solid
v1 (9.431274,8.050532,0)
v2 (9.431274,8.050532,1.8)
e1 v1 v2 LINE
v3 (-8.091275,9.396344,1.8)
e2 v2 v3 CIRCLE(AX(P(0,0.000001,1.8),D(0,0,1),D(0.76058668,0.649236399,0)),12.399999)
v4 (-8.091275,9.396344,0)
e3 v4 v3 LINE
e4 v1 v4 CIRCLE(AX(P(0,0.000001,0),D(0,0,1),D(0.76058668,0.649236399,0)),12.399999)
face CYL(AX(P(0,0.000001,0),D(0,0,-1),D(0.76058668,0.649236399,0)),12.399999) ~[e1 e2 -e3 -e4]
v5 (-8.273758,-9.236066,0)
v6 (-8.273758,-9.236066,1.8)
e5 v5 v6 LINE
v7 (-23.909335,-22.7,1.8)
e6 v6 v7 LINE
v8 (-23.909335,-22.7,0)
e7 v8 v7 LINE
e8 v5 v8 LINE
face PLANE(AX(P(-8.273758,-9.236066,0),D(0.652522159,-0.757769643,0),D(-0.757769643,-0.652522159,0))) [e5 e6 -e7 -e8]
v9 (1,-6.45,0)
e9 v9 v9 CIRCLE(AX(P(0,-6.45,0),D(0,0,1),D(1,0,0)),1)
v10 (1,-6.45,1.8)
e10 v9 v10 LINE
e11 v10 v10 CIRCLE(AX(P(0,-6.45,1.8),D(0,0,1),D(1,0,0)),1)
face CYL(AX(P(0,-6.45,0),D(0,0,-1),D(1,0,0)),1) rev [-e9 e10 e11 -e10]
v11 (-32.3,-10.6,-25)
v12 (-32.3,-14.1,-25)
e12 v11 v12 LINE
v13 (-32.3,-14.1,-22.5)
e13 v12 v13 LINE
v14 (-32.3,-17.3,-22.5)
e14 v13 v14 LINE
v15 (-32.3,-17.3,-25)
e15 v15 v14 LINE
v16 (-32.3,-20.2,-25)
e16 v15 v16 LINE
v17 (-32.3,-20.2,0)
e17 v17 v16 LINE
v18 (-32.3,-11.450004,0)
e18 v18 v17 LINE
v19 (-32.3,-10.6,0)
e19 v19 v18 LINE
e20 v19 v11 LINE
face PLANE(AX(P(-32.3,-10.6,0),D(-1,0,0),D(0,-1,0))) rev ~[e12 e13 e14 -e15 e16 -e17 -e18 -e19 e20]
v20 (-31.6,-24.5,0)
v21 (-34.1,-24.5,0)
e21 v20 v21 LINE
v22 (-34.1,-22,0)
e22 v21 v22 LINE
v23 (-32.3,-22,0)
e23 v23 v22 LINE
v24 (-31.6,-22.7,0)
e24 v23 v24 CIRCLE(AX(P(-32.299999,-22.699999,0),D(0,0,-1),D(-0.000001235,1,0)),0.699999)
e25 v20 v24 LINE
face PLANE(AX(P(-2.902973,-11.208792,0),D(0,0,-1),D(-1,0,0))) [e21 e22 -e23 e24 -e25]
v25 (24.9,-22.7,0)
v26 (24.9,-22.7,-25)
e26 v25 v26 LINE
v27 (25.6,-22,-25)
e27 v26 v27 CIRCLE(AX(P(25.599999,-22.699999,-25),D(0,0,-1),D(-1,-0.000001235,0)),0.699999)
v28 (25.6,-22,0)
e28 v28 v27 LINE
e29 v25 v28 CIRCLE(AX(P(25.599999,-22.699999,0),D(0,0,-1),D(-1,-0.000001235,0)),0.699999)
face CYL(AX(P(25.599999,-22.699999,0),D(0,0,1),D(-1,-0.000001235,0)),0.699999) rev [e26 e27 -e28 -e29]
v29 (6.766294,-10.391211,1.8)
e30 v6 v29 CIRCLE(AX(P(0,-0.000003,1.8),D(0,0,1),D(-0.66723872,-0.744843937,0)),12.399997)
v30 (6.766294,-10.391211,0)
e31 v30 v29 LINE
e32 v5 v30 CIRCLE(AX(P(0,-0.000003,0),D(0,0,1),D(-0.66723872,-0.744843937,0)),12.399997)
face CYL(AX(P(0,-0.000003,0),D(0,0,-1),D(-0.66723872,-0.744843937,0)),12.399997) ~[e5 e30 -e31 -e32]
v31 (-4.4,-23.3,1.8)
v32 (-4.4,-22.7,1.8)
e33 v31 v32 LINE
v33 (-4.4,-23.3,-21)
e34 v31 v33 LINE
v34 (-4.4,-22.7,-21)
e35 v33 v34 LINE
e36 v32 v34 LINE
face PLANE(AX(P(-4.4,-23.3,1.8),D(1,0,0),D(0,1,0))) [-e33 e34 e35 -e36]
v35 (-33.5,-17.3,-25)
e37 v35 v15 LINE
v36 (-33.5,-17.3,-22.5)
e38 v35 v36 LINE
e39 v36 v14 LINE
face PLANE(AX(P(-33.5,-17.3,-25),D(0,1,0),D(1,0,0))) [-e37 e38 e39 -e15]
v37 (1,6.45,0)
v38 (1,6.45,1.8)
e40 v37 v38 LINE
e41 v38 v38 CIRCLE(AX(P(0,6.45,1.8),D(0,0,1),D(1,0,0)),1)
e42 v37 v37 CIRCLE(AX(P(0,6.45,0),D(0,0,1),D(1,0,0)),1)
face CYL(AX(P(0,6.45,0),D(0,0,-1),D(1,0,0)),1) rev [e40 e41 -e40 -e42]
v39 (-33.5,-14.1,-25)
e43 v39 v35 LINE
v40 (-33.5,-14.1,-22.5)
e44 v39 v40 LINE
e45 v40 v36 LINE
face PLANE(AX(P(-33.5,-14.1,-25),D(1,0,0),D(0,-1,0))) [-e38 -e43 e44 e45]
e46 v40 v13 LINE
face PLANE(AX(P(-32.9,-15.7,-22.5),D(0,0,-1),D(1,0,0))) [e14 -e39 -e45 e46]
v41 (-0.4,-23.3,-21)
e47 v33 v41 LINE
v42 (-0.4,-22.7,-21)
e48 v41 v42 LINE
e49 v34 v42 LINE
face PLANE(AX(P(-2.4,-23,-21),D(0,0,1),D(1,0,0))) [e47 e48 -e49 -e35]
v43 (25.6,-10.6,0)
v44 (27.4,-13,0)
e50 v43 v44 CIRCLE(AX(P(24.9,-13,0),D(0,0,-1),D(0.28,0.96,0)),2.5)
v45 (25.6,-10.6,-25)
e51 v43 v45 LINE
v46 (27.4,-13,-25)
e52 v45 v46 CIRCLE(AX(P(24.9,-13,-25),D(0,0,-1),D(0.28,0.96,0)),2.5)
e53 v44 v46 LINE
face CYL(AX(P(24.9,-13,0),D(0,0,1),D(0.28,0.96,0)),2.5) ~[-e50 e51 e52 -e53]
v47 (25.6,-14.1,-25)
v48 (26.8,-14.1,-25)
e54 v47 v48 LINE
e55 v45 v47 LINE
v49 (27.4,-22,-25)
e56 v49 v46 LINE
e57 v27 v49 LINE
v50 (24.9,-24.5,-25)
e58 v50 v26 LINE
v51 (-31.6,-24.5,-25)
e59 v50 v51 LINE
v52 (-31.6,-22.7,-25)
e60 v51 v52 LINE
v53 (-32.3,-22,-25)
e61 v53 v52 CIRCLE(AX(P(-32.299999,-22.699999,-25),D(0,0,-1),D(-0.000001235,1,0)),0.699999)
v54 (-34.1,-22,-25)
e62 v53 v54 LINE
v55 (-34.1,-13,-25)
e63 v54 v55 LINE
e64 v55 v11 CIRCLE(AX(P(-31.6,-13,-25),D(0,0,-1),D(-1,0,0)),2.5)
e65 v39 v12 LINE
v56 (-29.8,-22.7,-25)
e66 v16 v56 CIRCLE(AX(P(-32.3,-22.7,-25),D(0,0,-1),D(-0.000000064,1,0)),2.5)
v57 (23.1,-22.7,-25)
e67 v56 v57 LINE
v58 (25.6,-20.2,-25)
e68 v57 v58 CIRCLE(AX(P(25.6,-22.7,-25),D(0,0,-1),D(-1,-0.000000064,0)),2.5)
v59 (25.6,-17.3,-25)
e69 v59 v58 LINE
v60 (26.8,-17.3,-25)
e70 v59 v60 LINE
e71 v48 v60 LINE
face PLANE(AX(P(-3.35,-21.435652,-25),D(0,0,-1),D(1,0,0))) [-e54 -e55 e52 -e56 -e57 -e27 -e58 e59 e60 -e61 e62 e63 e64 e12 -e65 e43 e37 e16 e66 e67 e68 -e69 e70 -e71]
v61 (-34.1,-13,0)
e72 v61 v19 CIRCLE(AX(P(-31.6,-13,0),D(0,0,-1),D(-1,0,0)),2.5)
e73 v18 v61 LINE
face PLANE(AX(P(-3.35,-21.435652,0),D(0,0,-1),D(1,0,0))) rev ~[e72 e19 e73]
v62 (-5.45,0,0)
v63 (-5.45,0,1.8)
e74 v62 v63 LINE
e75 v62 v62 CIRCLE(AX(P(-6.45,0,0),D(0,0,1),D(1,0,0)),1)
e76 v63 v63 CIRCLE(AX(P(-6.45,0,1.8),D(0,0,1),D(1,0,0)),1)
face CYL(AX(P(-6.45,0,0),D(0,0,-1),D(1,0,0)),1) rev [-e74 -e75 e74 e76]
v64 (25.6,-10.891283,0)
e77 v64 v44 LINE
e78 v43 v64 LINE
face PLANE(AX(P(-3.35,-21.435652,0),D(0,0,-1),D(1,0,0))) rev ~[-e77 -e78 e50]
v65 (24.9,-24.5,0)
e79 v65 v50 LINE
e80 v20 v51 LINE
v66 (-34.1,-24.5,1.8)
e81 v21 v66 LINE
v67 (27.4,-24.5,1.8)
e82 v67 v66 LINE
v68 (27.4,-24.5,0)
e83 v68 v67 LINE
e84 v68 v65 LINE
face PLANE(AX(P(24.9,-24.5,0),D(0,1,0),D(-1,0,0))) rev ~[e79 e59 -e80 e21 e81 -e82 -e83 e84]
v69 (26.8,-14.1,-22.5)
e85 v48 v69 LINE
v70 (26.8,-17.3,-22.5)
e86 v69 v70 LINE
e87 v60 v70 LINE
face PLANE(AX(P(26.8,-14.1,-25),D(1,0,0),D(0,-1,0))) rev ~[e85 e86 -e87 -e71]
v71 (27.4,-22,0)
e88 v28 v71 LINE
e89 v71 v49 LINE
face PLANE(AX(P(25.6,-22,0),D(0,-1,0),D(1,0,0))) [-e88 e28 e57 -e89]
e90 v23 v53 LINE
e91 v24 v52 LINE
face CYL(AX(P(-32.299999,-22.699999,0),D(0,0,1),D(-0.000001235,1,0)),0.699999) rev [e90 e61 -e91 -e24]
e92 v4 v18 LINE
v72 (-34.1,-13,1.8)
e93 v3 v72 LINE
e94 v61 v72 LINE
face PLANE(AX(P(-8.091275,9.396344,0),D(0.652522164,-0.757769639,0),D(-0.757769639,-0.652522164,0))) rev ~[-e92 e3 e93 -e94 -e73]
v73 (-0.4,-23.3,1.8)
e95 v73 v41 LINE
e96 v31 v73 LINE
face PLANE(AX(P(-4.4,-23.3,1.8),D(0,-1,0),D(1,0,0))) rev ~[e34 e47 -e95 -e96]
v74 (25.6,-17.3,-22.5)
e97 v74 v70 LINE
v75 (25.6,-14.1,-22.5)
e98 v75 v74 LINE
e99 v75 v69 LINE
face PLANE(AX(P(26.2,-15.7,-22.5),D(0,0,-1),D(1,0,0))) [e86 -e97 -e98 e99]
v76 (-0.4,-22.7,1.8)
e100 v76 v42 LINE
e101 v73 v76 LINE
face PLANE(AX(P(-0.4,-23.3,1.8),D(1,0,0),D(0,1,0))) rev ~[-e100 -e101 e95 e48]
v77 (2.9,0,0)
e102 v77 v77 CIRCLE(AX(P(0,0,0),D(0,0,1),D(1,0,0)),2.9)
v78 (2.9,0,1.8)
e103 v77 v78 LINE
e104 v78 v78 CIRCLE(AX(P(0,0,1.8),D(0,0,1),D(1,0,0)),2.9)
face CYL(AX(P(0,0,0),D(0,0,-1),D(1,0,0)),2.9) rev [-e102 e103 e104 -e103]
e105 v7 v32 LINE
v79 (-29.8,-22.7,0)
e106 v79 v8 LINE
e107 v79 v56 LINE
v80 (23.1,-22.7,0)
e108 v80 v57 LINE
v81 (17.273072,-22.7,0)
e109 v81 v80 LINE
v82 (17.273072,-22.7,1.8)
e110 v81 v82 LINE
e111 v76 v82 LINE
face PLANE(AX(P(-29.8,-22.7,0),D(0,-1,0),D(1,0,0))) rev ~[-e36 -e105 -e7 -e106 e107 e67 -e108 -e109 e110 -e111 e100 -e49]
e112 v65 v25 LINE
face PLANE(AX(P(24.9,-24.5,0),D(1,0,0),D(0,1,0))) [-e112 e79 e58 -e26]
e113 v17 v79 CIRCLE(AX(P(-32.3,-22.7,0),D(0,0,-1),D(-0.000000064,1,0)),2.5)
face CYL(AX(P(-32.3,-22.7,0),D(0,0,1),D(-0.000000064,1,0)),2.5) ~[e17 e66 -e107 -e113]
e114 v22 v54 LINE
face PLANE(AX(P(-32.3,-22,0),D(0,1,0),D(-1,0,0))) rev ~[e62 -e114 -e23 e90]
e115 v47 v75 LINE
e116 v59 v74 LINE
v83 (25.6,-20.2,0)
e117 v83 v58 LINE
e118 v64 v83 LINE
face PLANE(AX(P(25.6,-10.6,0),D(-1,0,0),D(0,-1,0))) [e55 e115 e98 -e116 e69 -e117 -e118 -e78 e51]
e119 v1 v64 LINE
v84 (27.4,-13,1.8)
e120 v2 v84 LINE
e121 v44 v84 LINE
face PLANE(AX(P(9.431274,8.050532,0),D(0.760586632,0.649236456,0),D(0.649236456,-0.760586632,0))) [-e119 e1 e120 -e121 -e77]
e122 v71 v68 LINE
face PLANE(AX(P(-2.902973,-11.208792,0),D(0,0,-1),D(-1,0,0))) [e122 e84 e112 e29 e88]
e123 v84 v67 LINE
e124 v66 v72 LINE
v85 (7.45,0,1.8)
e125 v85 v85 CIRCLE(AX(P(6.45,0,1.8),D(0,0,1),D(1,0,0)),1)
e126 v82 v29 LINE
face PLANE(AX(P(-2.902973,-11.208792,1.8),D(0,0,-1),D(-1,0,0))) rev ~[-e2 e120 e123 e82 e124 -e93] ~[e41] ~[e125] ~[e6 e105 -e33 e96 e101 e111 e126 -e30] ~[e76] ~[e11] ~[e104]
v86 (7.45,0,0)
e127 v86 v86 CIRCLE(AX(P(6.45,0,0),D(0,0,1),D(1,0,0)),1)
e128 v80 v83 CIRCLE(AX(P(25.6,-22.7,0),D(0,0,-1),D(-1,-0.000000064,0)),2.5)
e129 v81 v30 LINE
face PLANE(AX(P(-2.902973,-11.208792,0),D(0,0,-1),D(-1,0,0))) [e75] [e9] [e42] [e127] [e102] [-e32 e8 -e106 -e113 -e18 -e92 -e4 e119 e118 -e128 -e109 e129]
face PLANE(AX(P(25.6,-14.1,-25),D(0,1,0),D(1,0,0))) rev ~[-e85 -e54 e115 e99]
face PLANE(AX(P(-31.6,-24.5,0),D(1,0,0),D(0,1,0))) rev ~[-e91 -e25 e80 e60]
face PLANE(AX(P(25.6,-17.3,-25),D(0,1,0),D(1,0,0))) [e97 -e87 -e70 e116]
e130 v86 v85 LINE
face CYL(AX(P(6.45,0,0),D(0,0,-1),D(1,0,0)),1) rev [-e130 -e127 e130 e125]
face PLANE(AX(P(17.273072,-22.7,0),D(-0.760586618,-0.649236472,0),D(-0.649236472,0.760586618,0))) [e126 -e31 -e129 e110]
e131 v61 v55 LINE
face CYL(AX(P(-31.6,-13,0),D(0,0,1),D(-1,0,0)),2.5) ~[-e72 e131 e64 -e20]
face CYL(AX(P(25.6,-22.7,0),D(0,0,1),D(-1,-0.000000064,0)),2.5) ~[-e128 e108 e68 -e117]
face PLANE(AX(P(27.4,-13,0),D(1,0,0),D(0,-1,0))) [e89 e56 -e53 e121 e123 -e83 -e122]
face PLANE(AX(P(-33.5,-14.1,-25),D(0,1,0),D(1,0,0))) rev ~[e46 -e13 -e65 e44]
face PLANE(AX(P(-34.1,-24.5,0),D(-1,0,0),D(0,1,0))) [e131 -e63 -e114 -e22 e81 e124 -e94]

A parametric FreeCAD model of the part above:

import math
import FreeCAD as App
import Part
import Sketcher

V = App.Vector
Q = App.Units.Quantity


def add_polygon(sketch, points):
    """Adds a closed chain of lines whose ends are joined by coincident constraints."""
    first, n = sketch.GeometryCount, len(points)
    for a, b in zip(points, points[1:] + points[:1]):
        sketch.addGeometry(Part.LineSegment(App.Vector(*a, 0), App.Vector(*b, 0)), False)
    for i in range(n):
        sketch.addConstraint(Sketcher.Constraint("Coincident", first + i, 2, first + (i + 1) % n, 1))

doc = App.newDocument("Part")
body = doc.addObject("PartDesign::Body", "Body")

sketch1 = body.newObject("Sketcher::SketchObject", "Sketch")
sketch1.AttachmentSupport = (doc.getObject("XY_Plane"), [""])
sketch1.MapMode = "FlatFace"
sketch1.addGeometry([
    Part.LineSegment(V(27.4, -13, 0), V(9.4, 8.1, 0)),
    Part.ArcOfCircle(Part.Circle(V(0, 0, 0), V(0, 0, 1), 12.4), math.radians(40), math.radians(131)),
    Part.LineSegment(V(-8.1, 9.4, 0), V(-34.1, -13, 0)),
    Part.LineSegment(V(-34.1, -13, 0), V(-34.1, -24.5, 0)),
    Part.LineSegment(V(-34.1, -24.5, 0), V(27.4, -24.5, 0)),
    Part.LineSegment(V(27.4, -24.5, 0), V(27.4, -13, 0)),
    Part.ArcOfCircle(Part.Circle(V(0, 0, 0), V(0, 0, 1), 12.4), math.radians(-132), math.radians(-57)),
    Part.LineSegment(V(6.8, -10.4, 0), V(17.3, -22.7, 0)),
    Part.LineSegment(V(17.3, -22.7, 0), V(-23.9, -22.7, 0)),
    Part.LineSegment(V(-23.9, -22.7, 0), V(-8.3, -9.2, 0)),
    Part.Circle(V(0, -6.5, 0), V(0, 0, 1), 1),
    Part.Circle(V(6.5, 0, 0), V(0, 0, 1), 1),
    Part.Circle(V(0, 0, 0), V(0, 0, 1), 2.9),
    Part.Circle(V(0, 6.5, 0), V(0, 0, 1), 1),
    Part.Circle(V(-6.5, 0, 0), V(0, 0, 1), 1),
], False)
sketch1.addConstraint([
    Sketcher.Constraint("Tangent", 0, 2, 1, 1),
    Sketcher.Constraint("Tangent", 1, 2, 2, 1),
    Sketcher.Constraint("Coincident", 2, 2, 3, 1),
    Sketcher.Constraint("Coincident", 3, 2, 4, 1),
    Sketcher.Constraint("Coincident", 4, 2, 5, 1),
    Sketcher.Constraint("Coincident", 5, 2, 0, 1),
    Sketcher.Constraint("Coincident", 6, 2, 7, 1),
    Sketcher.Constraint("Coincident", 7, 2, 8, 1),
    Sketcher.Constraint("Coincident", 8, 2, 9, 1),
    Sketcher.Constraint("Coincident", 9, 2, 6, 1),
    Sketcher.Constraint("Vertical", 3),
    Sketcher.Constraint("Horizontal", 4),
    Sketcher.Constraint("Vertical", 5),
    Sketcher.Constraint("Horizontal", 8),
    Sketcher.Constraint("Coincident", 1, 3, -1, 1),
    Sketcher.Constraint("Coincident", 6, 3, -1, 1),
    Sketcher.Constraint("Coincident", 12, 3, -1, 1),
    Sketcher.Constraint("Equal", 10, 11),
    Sketcher.Constraint("Equal", 11, 13),
    Sketcher.Constraint("Equal", 13, 14),
    Sketcher.Constraint("Symmetric", 10, 3, 13, 3, -1, 1),
    Sketcher.Constraint("Symmetric", 11, 3, 14, 3, -1, 1),
    Sketcher.Constraint("PointOnObject", 10, 3, -2),
    Sketcher.Constraint("PointOnObject", 11, 3, -1),
    Sketcher.Constraint("Parallel", 0, 7),
    Sketcher.Constraint("Parallel", 2, 9),
    Sketcher.Constraint("Horizontal", 2, 2, 5, 2),
    Sketcher.Constraint("Diameter", 10, Q("2 mm")),
    Sketcher.Constraint("Diameter", 12, Q("5.8 mm")),
    Sketcher.Constraint("Radius", 1, Q("12.399999 mm")),
    Sketcher.Constraint("DistanceX", 4, 1, 4, 2, Q("61.5 mm")),
    Sketcher.Constraint("DistanceY", 3, 2, 3, 1, Q("11.5 mm")),
    Sketcher.Constraint("DistanceY", 2, 2, -1, 1, Q("13 mm")),
    Sketcher.Constraint("DistanceX", 2, 2, -1, 1, Q("34.1 mm")),
    Sketcher.Constraint("DistanceY", 7, 2, -1, 1, Q("22.7 mm")),
    Sketcher.Constraint("DistanceY", 10, 3, 13, 3, Q("12.9 mm")),
    Sketcher.Constraint("DistanceX", -1, 1, 11, 3, Q("6.45 mm")),
    Sketcher.Constraint("Radius", 6, Q("12.399997 mm")),
    Sketcher.Constraint("Distance", 9, Q("20.633681 mm")),
    Sketcher.Constraint("DistanceX", 8, 2, 8, 1, Q("41.182407 mm")),
])
pad1 = body.newObject("PartDesign::Pad", "Pad")
pad1.Profile = sketch1
pad1.Length = 1.8

sketch2 = body.newObject("Sketcher::SketchObject", "Sketch001")
sketch2.AttachmentSupport = (doc.getObject("XY_Plane"), [""])
sketch2.MapMode = "FlatFace"
sketch2.addGeometry([
    Part.LineSegment(V(24.9, -24.5, 0), V(-31.6, -24.5, 0)),
    Part.LineSegment(V(-31.6, -24.5, 0), V(-31.6, -22.7, 0)),
    Part.ArcOfCircle(Part.Circle(V(-32.3, -22.7, 0), V(0, 0, 1), 0.7), math.radians(0), math.radians(90)),
    Part.LineSegment(V(-32.3, -22, 0), V(-34.1, -22, 0)),
    Part.LineSegment(V(-34.1, -22, 0), V(-34.1, -13, 0)),
    Part.ArcOfCircle(Part.Circle(V(-31.6, -13, 0), V(0, 0, 1), 2.5), math.radians(106), math.radians(180)),
    Part.LineSegment(V(-32.3, -10.6, 0), V(-32.3, -20.2, 0)),
    Part.ArcOfCircle(Part.Circle(V(-32.3, -22.7, 0), V(0, 0, 1), 2.5), math.radians(0), math.radians(90)),
    Part.LineSegment(V(-29.8, -22.7, 0), V(23.1, -22.7, 0)),
    Part.ArcOfCircle(Part.Circle(V(25.6, -22.7, 0), V(0, 0, 1), 2.5), math.radians(90), math.radians(180)),
    Part.LineSegment(V(25.6, -20.2, 0), V(25.6, -10.6, 0)),
    Part.ArcOfCircle(Part.Circle(V(24.9, -13, 0), V(0, 0, 1), 2.5), math.radians(0), math.radians(74)),
    Part.LineSegment(V(27.4, -13, 0), V(27.4, -22, 0)),
    Part.LineSegment(V(27.4, -22, 0), V(25.6, -22, 0)),
    Part.ArcOfCircle(Part.Circle(V(25.6, -22.7, 0), V(0, 0, 1), 0.7), math.radians(90), math.radians(180)),
    Part.LineSegment(V(24.9, -22.7, 0), V(24.9, -24.5, 0)),
], False)
sketch2.addConstraint([
    Sketcher.Constraint("Coincident", 0, 2, 1, 1),
    Sketcher.Constraint("Tangent", 1, 2, 2, 1),
    Sketcher.Constraint("Tangent", 2, 2, 3, 1),
    Sketcher.Constraint("Coincident", 3, 2, 4, 1),
    Sketcher.Constraint("Tangent", 4, 2, 5, 2),
    Sketcher.Constraint("Coincident", 5, 1, 6, 1),
    Sketcher.Constraint("Coincident", 6, 2, 7, 2),
    Sketcher.Constraint("Coincident", 7, 1, 8, 1),
    Sketcher.Constraint("Coincident", 8, 2, 9, 2),
    Sketcher.Constraint("Coincident", 9, 1, 10, 1),
    Sketcher.Constraint("Coincident", 10, 2, 11, 2),
    Sketcher.Constraint("Tangent", 11, 1, 12, 1),
    Sketcher.Constraint("Coincident", 12, 2, 13, 1),
    Sketcher.Constraint("Tangent", 13, 2, 14, 1),
    Sketcher.Constraint("Tangent", 14, 2, 15, 1),
    Sketcher.Constraint("Coincident", 15, 2, 0, 1),
    Sketcher.Constraint("Horizontal", 0),
    Sketcher.Constraint("Vertical", 1),
    Sketcher.Constraint("Horizontal", 3),
    Sketcher.Constraint("Vertical", 4),
    Sketcher.Constraint("Vertical", 6),
    Sketcher.Constraint("Horizontal", 8),
    Sketcher.Constraint("Vertical", 10),
    Sketcher.Constraint("Vertical", 12),
    Sketcher.Constraint("Horizontal", 13),
    Sketcher.Constraint("Vertical", 15),
    Sketcher.Constraint("Coincident", 7, 3, 2, 3),
    Sketcher.Constraint("Coincident", 14, 3, 9, 3),
    Sketcher.Constraint("Equal", 5, 7),
    Sketcher.Constraint("Equal", 7, 9),
    Sketcher.Constraint("Equal", 9, 11),
    Sketcher.Constraint("Equal", 2, 14),
    Sketcher.Constraint("Horizontal", 7, 3, 9, 3),
    Sketcher.Constraint("Horizontal", 5, 3, 11, 3),
    Sketcher.Constraint("Horizontal", 1, 2, 7, 1),
    Sketcher.Constraint("Horizontal", 5, 1, 10, 2),
    Sketcher.Constraint("Vertical", 5, 3, 0, 2),
    Sketcher.Constraint("Vertical", 2, 2, 5, 1),
    Sketcher.Constraint("Vertical", 14, 3, 9, 1),
    Sketcher.Constraint("Equal", 13, 1),
    Sketcher.Constraint("Radius", 2, Q("0.699999 mm")),
    Sketcher.Constraint("Radius", 5, Q("2.5 mm")),
    Sketcher.Constraint("DistanceY", 4, 1, 4, 2, Q("9 mm")),
    Sketcher.Constraint("DistanceX", 0, 2, 0, 1, Q("56.5 mm")),
    Sketcher.Constraint("DistanceY", 5, 3, -1, 1, Q("13 mm")),
    Sketcher.Constraint("DistanceX", 2, 3, -1, 1, Q("32.299999 mm")),
])
pad2 = body.newObject("PartDesign::Pad", "Pad001")
pad2.Profile = sketch2
pad2.Length = 25
pad2.Reversed = True

sketch3 = body.newObject("Sketcher::SketchObject", "Sketch002")
sketch3.AttachmentSupport = (doc.getObject("XY_Plane"), [""])
sketch3.MapMode = "FlatFace"
sketch3.AttachmentOffset = App.Placement(V(0, 0, 1.8), App.Rotation())
add_polygon(sketch3, [(-4.4, -22.7), (-4.4, -23.3), (-0.4, -23.3), (-0.4, -22.7)])
sketch3.addConstraint([
    Sketcher.Constraint("Vertical", 0),
    Sketcher.Constraint("Horizontal", 1),
    Sketcher.Constraint("Vertical", 2),
    Sketcher.Constraint("Horizontal", 3),
    Sketcher.Constraint("DistanceX", 1, 1, 1, 2, Q("4 mm")),
    Sketcher.Constraint("DistanceY", 0, 2, 0, 1, Q("0.6 mm")),
    Sketcher.Constraint("DistanceX", 0, 2, -1, 1, Q("4.4 mm")),
    Sketcher.Constraint("DistanceY", 0, 2, -1, 1, Q("23.3 mm")),
])
pocket1 = body.newObject("PartDesign::Pocket", "Pocket")
pocket1.Profile = sketch3
pocket1.Length = 22.8

sketch4 = body.newObject("Sketcher::SketchObject", "Sketch003")
sketch4.AttachmentSupport = (doc.getObject("XY_Plane"), [""])
sketch4.MapMode = "FlatFace"
sketch4.AttachmentOffset = App.Placement(V(0, 0, -25), App.Rotation())
add_polygon(sketch4, [(25.6, -17.3), (25.6, -14.1), (26.8, -14.1), (26.8, -17.3)])
add_polygon(sketch4, [(-33.5, -17.3), (-33.5, -14.1), (-32.3, -14.1), (-32.3, -17.3)])
sketch4.addConstraint([
    Sketcher.Constraint("Vertical", 0),
    Sketcher.Constraint("Horizontal", 1),
    Sketcher.Constraint("Vertical", 2),
    Sketcher.Constraint("Horizontal", 3),
    Sketcher.Constraint("Vertical", 4),
    Sketcher.Constraint("Horizontal", 5),
    Sketcher.Constraint("Vertical", 6),
    Sketcher.Constraint("Horizontal", 7),
    Sketcher.Constraint("Horizontal", 1, 2, 4, 2),
    Sketcher.Constraint("Horizontal", 3, 2, 6, 2),
    Sketcher.Constraint("Equal", 3, 5),
    Sketcher.Constraint("DistanceX", 1, 1, 1, 2, Q("1.2 mm")),
    Sketcher.Constraint("DistanceY", 0, 1, 0, 2, Q("3.2 mm")),
    Sketcher.Constraint("DistanceX", -1, 1, 0, 2, Q("25.6 mm")),
    Sketcher.Constraint("DistanceY", 0, 2, -1, 1, Q("14.1 mm")),
    Sketcher.Constraint("DistanceX", 4, 2, -1, 1, Q("33.5 mm")),
])
pocket2 = body.newObject("PartDesign::Pocket", "Pocket001")
pocket2.Profile = sketch4
pocket2.Length = 2.5
pocket2.Reversed = True

doc.recompute()
